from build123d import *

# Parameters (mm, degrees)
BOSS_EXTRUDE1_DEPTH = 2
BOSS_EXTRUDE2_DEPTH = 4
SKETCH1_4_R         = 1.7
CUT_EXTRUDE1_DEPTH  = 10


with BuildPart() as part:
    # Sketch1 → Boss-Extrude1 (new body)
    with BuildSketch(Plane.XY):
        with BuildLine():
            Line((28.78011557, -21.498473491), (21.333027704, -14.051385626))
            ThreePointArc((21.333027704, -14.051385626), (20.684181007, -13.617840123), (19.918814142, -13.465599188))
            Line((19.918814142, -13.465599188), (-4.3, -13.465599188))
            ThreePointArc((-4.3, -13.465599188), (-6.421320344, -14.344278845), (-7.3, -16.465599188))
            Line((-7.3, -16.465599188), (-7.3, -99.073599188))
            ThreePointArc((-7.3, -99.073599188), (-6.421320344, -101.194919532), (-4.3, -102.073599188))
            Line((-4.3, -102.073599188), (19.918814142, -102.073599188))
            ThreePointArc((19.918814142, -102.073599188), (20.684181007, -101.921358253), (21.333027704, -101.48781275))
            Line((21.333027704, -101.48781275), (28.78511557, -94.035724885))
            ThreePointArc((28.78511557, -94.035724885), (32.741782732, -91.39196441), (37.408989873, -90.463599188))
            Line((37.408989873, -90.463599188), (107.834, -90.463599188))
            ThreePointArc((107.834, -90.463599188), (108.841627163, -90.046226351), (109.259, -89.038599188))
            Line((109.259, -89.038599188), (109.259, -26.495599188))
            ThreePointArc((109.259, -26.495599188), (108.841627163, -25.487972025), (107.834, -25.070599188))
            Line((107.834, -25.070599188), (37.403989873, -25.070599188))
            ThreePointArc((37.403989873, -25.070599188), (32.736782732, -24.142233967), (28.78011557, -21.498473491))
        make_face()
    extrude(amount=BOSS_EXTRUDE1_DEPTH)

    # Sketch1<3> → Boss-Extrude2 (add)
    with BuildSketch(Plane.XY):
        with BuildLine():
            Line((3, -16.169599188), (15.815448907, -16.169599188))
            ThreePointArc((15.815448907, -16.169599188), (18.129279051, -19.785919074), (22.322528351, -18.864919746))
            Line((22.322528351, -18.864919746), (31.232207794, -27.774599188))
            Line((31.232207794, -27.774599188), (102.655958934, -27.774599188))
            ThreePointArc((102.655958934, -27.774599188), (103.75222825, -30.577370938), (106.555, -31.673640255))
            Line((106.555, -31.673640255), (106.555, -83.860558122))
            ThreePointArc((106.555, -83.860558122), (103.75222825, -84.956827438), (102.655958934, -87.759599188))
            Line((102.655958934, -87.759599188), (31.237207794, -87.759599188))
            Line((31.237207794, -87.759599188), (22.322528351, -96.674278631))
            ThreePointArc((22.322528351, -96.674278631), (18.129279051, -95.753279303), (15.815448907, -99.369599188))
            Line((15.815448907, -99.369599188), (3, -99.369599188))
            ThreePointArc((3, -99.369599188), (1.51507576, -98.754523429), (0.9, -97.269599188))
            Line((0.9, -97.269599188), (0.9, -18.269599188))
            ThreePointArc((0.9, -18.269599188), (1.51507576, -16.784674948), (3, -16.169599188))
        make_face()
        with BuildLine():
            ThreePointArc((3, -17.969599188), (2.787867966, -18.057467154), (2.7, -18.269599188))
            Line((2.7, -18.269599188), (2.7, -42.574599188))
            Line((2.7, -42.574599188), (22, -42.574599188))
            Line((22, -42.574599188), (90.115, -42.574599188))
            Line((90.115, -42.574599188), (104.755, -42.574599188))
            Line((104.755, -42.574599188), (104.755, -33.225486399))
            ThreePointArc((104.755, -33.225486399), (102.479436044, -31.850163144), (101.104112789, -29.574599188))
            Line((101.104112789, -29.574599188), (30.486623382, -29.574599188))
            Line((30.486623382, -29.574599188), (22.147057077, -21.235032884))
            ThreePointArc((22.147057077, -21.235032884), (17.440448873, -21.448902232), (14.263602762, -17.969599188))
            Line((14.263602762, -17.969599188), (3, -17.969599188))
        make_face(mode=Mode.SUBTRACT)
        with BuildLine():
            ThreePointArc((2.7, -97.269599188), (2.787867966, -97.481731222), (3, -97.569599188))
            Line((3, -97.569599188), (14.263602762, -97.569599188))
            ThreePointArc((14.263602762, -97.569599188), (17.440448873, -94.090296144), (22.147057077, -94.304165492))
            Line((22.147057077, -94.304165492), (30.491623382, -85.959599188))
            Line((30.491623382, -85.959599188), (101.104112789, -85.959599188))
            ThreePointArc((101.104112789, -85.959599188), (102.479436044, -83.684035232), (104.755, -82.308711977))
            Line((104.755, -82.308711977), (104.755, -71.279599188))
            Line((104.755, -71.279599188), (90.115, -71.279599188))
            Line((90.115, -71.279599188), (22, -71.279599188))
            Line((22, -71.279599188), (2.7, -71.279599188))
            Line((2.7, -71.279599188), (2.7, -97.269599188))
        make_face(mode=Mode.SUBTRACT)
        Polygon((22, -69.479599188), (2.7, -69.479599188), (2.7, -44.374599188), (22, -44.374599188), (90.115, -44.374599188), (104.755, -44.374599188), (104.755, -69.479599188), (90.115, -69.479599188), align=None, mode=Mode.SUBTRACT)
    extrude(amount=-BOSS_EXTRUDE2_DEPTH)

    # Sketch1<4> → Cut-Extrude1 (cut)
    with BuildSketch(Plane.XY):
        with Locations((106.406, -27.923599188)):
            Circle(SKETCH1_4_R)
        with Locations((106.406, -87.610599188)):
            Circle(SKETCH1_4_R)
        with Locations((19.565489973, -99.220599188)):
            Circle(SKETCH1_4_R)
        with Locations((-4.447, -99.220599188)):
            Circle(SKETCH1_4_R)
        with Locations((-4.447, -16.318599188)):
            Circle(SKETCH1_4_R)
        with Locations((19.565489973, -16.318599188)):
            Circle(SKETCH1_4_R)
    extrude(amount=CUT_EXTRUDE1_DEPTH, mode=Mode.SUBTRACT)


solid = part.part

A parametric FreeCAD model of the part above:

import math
import FreeCAD as App
import Part
import Sketcher

V = App.Vector
Q = App.Units.Quantity

doc = App.newDocument("Part")
body = doc.addObject("PartDesign::Body", "Body")

# Sketch on XY plane
sketch1 = body.newObject("Sketcher::SketchObject", "Sketch")
sketch1.AttachmentSupport = (doc.getObject("XY_Plane"), [""])
sketch1.MapMode = "FlatFace"
sketch1.addGeometry(Part.LineSegment(V(28.8, -21.5, 0), V(21.3, -14.1, 0)), False)
sketch1.addGeometry(Part.ArcOfCircle(Part.Circle(V(19.9, -15.5, 0), V(0, 0, 1), 2), math.radians(45), math.radians(90)), False)
sketch1.addGeometry(Part.LineSegment(V(19.9, -13.5, 0), V(-4.3, -13.5, 0)), False)
sketch1.addGeometry(Part.ArcOfCircle(Part.Circle(V(-4.3, -16.5, 0), V(0, 0, 1), 3), math.radians(90), math.radians(180)), False)
sketch1.addGeometry(Part.LineSegment(V(-7.3, -16.5, 0), V(-7.3, -99.1, 0)), False)
sketch1.addGeometry(Part.ArcOfCircle(Part.Circle(V(-4.3, -99.1, 0), V(0, 0, 1), 3), math.radians(180), math.radians(270)), False)
sketch1.addGeometry(Part.LineSegment(V(-4.3, -102.1, 0), V(19.9, -102.1, 0)), False)
sketch1.addGeometry(Part.ArcOfCircle(Part.Circle(V(19.9, -100.1, 0), V(0, 0, 1), 2), math.radians(-90), math.radians(-45)), False)
sketch1.addGeometry(Part.LineSegment(V(21.3, -101.5, 0), V(28.8, -94, 0)), False)
sketch1.addGeometry(Part.ArcOfCircle(Part.Circle(V(37.4, -102.7, 0), V(0, 0, 1), 12.2), math.radians(90), math.radians(135)), False)
sketch1.addGeometry(Part.LineSegment(V(37.4, -90.5, 0), V(107.8, -90.5, 0)), False)
sketch1.addGeometry(Part.ArcOfCircle(Part.Circle(V(107.8, -89, 0), V(0, 0, 1), 1.4), math.radians(-90), math.radians(0)), False)
sketch1.addGeometry(Part.LineSegment(V(109.3, -89, 0), V(109.3, -26.5, 0)), False)
sketch1.addGeometry(Part.ArcOfCircle(Part.Circle(V(107.8, -26.5, 0), V(0, 0, 1), 1.4), math.radians(0), math.radians(90)), False)
sketch1.addGeometry(Part.LineSegment(V(107.8, -25.1, 0), V(37.4, -25.1, 0)), False)
sketch1.addGeometry(Part.ArcOfCircle(Part.Circle(V(37.4, -12.9, 0), V(0, 0, 1), 12.2), math.radians(-135), math.radians(-90)), False)
sketch1.addConstraint(Sketcher.Constraint("Tangent", 0, 2, 1, 1))
sketch1.addConstraint(Sketcher.Constraint("Tangent", 1, 2, 2, 1))
sketch1.addConstraint(Sketcher.Constraint("Tangent", 2, 2, 3, 1))
sketch1.addConstraint(Sketcher.Constraint("Tangent", 3, 2, 4, 1))
sketch1.addConstraint(Sketcher.Constraint("Tangent", 4, 2, 5, 1))
sketch1.addConstraint(Sketcher.Constraint("Tangent", 5, 2, 6, 1))
sketch1.addConstraint(Sketcher.Constraint("Tangent", 6, 2, 7, 1))
sketch1.addConstraint(Sketcher.Constraint("Tangent", 7, 2, 8, 1))
sketch1.addConstraint(Sketcher.Constraint("Tangent", 8, 2, 9, 2))
sketch1.addConstraint(Sketcher.Constraint("Tangent", 9, 1, 10, 1))
sketch1.addConstraint(Sketcher.Constraint("Tangent", 10, 2, 11, 1))
sketch1.addConstraint(Sketcher.Constraint("Tangent", 11, 2, 12, 1))
sketch1.addConstraint(Sketcher.Constraint("Tangent", 12, 2, 13, 1))
sketch1.addConstraint(Sketcher.Constraint("Tangent", 13, 2, 14, 1))
sketch1.addConstraint(Sketcher.Constraint("Tangent", 14, 2, 15, 2))
sketch1.addConstraint(Sketcher.Constraint("Tangent", 15, 1, 0, 1))
sketch1.addConstraint(Sketcher.Constraint("Horizontal", 2))
sketch1.addConstraint(Sketcher.Constraint("Vertical", 4))
sketch1.addConstraint(Sketcher.Constraint("Horizontal", 6))
sketch1.addConstraint(Sketcher.Constraint("Horizontal", 10))
sketch1.addConstraint(Sketcher.Constraint("Vertical", 12))
sketch1.addConstraint(Sketcher.Constraint("Horizontal", 14))
sketch1.addConstraint(Sketcher.Constraint("Equal", 3, 5))
sketch1.addConstraint(Sketcher.Constraint("Equal", 1, 7))
sketch1.addConstraint(Sketcher.Constraint("Equal", 11, 13))
sketch1.addConstraint(Sketcher.Constraint("Equal", 9, 15))
sketch1.addConstraint(Sketcher.Constraint("Perpendicular", 0, 8))
sketch1.addConstraint(Sketcher.Constraint("Vertical", 1, 3, 7, 3))
sketch1.addConstraint(Sketcher.Constraint("Vertical", 0, 2, 7, 2))
sketch1.addConstraint(Sketcher.Constraint("Radius", 1, 2.0))
sketch1.addConstraint(Sketcher.Constraint("Radius", 3, 3.0))
sketch1.addConstraint(Sketcher.Constraint("Radius", 9, 12.196))
sketch1.addConstraint(Sketcher.Constraint("Radius", 11, 1.425))
sketch1.addConstraint(Sketcher.Constraint("DistanceX", 3, 3, -1, 1, 4.3))
sketch1.addConstraint(Sketcher.Constraint("DistanceY", 4, 2, 4, 1, 82.608))
sketch1.addConstraint(Sketcher.Constraint("DistanceY", 12, 1, 12, 2, 62.543))
sketch1.addConstraint(Sketcher.Constraint("DistanceY", 13, 3, 1, 3, 11.03))
sketch1.addConstraint(Sketcher.Constraint("DistanceX", -1, 1, 11, 3, 107.834))
sketch1.addConstraint(Sketcher.Constraint("DistanceX", 10, 1, 10, 2, 70.42501))
sketch1.addConstraint(Sketcher.Constraint("DistanceY", 1, 3, -1, 1, 15.465599))
pad1 = body.newObject("PartDesign::Pad", "Pad")
pad1.Profile = sketch1
pad1.Length = 2

# Sketch on XY plane
sketch2 = body.newObject("Sketcher::SketchObject", "Sketch001")
sketch2.AttachmentSupport = (doc.getObject("XY_Plane"), [""])
sketch2.MapMode = "FlatFace"
sketch2.addGeometry(Part.LineSegment(V(15.82, -16.17, 0), V(3, -16.17, 0)), False)
sketch2.addGeometry(Part.ArcOfCircle(Part.Circle(V(3, -18.27, 0), V(0, 0, 1), 2.1), math.radians(90), math.radians(180)), False)
sketch2.addGeometry(Part.LineSegment(V(0.9, -18.27, 0), V(0.9, -97.27, 0)), False)
sketch2.addGeometry(Part.ArcOfCircle(Part.Circle(V(3, -97.27, 0), V(0, 0, 1), 2.1), math.radians(180), math.radians(270)), False)
sketch2.addGeometry(Part.LineSegment(V(3, -99.37, 0), V(15.82, -99.37, 0)), False)
sketch2.addGeometry(Part.ArcOfCircle(Part.Circle(V(19.57, -99.22, 0), V(0, 0, 1), 3.75), math.radians(43), math.radians(182)), False)
sketch2.addGeometry(Part.LineSegment(V(22.32, -96.67, 0), V(31.24, -87.76, 0)), False)
sketch2.addGeometry(Part.LineSegment(V(31.24, -87.76, 0), V(102.66, -87.76, 0)), False)
sketch2.addGeometry(Part.ArcOfCircle(Part.Circle(V(106.41, -87.61, 0), V(0, 0, 1), 3.75), math.radians(88), math.radians(182)), False)
sketch2.addGeometry(Part.LineSegment(V(106.56, -83.86, 0), V(106.56, -31.67, 0)), False)
sketch2.addGeometry(Part.ArcOfCircle(Part.Circle(V(106.41, -27.92, 0), V(0, 0, 1), 3.75), math.radians(178), math.radians(272)), False)
sketch2.addGeometry(Part.LineSegment(V(102.66, -27.77, 0), V(31.23, -27.77, 0)), False)
sketch2.addGeometry(Part.LineSegment(V(31.23, -27.77, 0), V(22.32, -18.86, 0)), False)
sketch2.addGeometry(Part.ArcOfCircle(Part.Circle(V(19.57, -16.32, 0), V(0, 0, 1), 3.75), math.radians(178), math.radians(317)), False)
sketch2.addGeometry(Part.LineSegment(V(2.7, -97.27, 0), V(2.7, -71.28, 0)), False)
sketch2.addGeometry(Part.LineSegment(V(2.7, -71.28, 0), V(104.75, -71.28, 0)), False)
sketch2.addGeometry(Part.LineSegment(V(104.75, -71.28, 0), V(104.75, -82.31, 0)), False)
sketch2.addGeometry(Part.ArcOfCircle(Part.Circle(V(106.41, -87.61, 0), V(0, 0, 1), 5.55), math.radians(107), math.radians(163)), False)
sketch2.addGeometry(Part.LineSegment(V(101.1, -85.96, 0), V(30.49, -85.96, 0)), False)
sketch2.addGeometry(Part.LineSegment(V(30.49, -85.96, 0), V(22.15, -94.3, 0)), False)
sketch2.addGeometry(Part.ArcOfCircle(Part.Circle(V(19.57, -99.22, 0), V(0, 0, 1), 5.55), math.radians(62), math.radians(163)), False)
sketch2.addGeometry(Part.LineSegment(V(14.26, -97.57, 0), V(3, -97.57, 0)), False)
sketch2.addGeometry(Part.ArcOfCircle(Part.Circle(V(3, -97.27, 0), V(0, 0, 1), 0.3), math.radians(-180), math.radians(-90)), False)
sketch2.addGeometry(Part.LineSegment(V(2.7, -69.48, 0), V(2.7, -44.37, 0)), False)
sketch2.addGeometry(Part.LineSegment(V(2.7, -44.37, 0), V(104.75, -44.37, 0)), False)
sketch2.addGeometry(Part.LineSegment(V(104.75, -44.37, 0), V(104.75, -69.48, 0)), False)
sketch2.addGeometry(Part.LineSegment(V(104.75, -69.48, 0), V(2.7, -69.48, 0)), False)
sketch2.addGeometry(Part.LineSegment(V(3, -17.97, 0), V(14.26, -17.97, 0)), False)
sketch2.addGeometry(Part.ArcOfCircle(Part.Circle(V(19.57, -16.32, 0), V(0, 0, 1), 5.55), math.radians(-163), math.radians(-62)), False)
sketch2.addGeometry(Part.LineSegment(V(22.15, -21.24, 0), V(30.49, -29.57, 0)), False)
sketch2.addGeometry(Part.LineSegment(V(30.49, -29.57, 0), V(101.1, -29.57, 0)), False)
sketch2.addGeometry(Part.ArcOfCircle(Part.Circle(V(106.41, -27.92, 0), V(0, 0, 1), 5.55), math.radians(-163), math.radians(-107)), False)
sketch2.addGeometry(Part.LineSegment(V(104.75, -33.23, 0), V(104.75, -42.57, 0)), False)
sketch2.addGeometry(Part.LineSegment(V(104.75, -42.57, 0), V(2.7, -42.57, 0)), False)
sketch2.addGeometry(Part.LineSegment(V(2.7, -42.57, 0), V(2.7, -18.27, 0)), False)
sketch2.addGeometry(Part.ArcOfCircle(Part.Circle(V(3, -18.27, 0), V(0, 0, 1), 0.3), math.radians(90), math.radians(180)), False)
sketch2.addConstraint(Sketcher.Constraint("Tangent", 0, 2, 1, 1))
sketch2.addConstraint(Sketcher.Constraint("Tangent", 1, 2, 2, 1))
sketch2.addConstraint(Sketcher.Constraint("Tangent", 2, 2, 3, 1))
sketch2.addConstraint(Sketcher.Constraint("Tangent", 3, 2, 4, 1))
sketch2.addConstraint(Sketcher.Constraint("Coincident", 4, 2, 5, 2))
sketch2.addConstraint(Sketcher.Constraint("Coincident", 5, 1, 6, 1))
sketch2.addConstraint(Sketcher.Constraint("Coincident", 6, 2, 7, 1))
sketch2.addConstraint(Sketcher.Constraint("Coincident", 7, 2, 8, 2))
sketch2.addConstraint(Sketcher.Constraint("Coincident", 8, 1, 9, 1))
sketch2.addConstraint(Sketcher.Constraint("Coincident", 9, 2, 10, 2))
sketch2.addConstraint(Sketcher.Constraint("Coincident", 10, 1, 11, 1))
sketch2.addConstraint(Sketcher.Constraint("Coincident", 11, 2, 12, 1))
sketch2.addConstraint(Sketcher.Constraint("Coincident", 12, 2, 13, 2))
sketch2.addConstraint(Sketcher.Constraint("Coincident", 13, 1, 0, 1))
sketch2.addConstraint(Sketcher.Constraint("Coincident", 14, 2, 15, 1))
sketch2.addConstraint(Sketcher.Constraint("Coincident", 15, 2, 16, 1))
sketch2.addConstraint(Sketcher.Constraint("Coincident", 16, 2, 17, 1))
sketch2.addConstraint(Sketcher.Constraint("Coincident", 17, 2, 18, 1))
sketch2.addConstraint(Sketcher.Constraint("Coincident", 18, 2, 19, 1))
sketch2.addConstraint(Sketcher.Constraint("Coincident", 19, 2, 20, 1))
sketch2.addConstraint(Sketcher.Constraint("Coincident", 20, 2, 21, 1))
sketch2.addConstraint(Sketcher.Constraint("Tangent", 21, 2, 22, 2))
sketch2.addConstraint(Sketcher.Constraint("Tangent", 22, 1, 14, 1))
sketch2.addConstraint(Sketcher.Constraint("Coincident", 23, 2, 24, 1))
sketch2.addConstraint(Sketcher.Constraint("Coincident", 24, 2, 25, 1))
sketch2.addConstraint(Sketcher.Constraint("Coincident", 25, 2, 26, 1))
sketch2.addConstraint(Sketcher.Constraint("Coincident", 26, 2, 23, 1))
sketch2.addConstraint(Sketcher.Constraint("Coincident", 27, 2, 28, 1))
sketch2.addConstraint(Sketcher.Constraint("Coincident", 28, 2, 29, 1))
sketch2.addConstraint(Sketcher.Constraint("Coincident", 29, 2, 30, 1))
sketch2.addConstraint(Sketcher.Constraint("Coincident", 30, 2, 31, 1))
sketch2.addConstraint(Sketcher.Constraint("Coincident", 31, 2, 32, 1))
sketch2.addConstraint(Sketcher.Constraint("Coincident", 32, 2, 33, 1))
sketch2.addConstraint(Sketcher.Constraint("Coincident", 33, 2, 34, 1))
sketch2.addConstraint(Sketcher.Constraint("Tangent", 34, 2, 35, 2))
sketch2.addConstraint(Sketcher.Constraint("Tangent", 35, 1, 27, 1))
sketch2.addConstraint(Sketcher.Constraint("Horizontal", 0))
sketch2.addConstraint(Sketcher.Constraint("Vertical", 2))
sketch2.addConstraint(Sketcher.Constraint("Horizontal", 4))
sketch2.addConstraint(Sketcher.Constraint("Horizontal", 7))
sketch2.addConstraint(Sketcher.Constraint("Vertical", 9))
sketch2.addConstraint(Sketcher.Constraint("Horizontal", 11))
sketch2.addConstraint(Sketcher.Constraint("Vertical", 14))
sketch2.addConstraint(Sketcher.Constraint("Horizontal", 15))
sketch2.addConstraint(Sketcher.Constraint("Vertical", 16))
sketch2.addConstraint(Sketcher.Constraint("Horizontal", 18))
sketch2.addConstraint(Sketcher.Constraint("Horizontal", 21))
sketch2.addConstraint(Sketcher.Constraint("Vertical", 23))
sketch2.addConstraint(Sketcher.Constraint("Horizontal", 24))
sketch2.addConstraint(Sketcher.Constraint("Vertical", 25))
sketch2.addConstraint(Sketcher.Constraint("Horizontal", 26))
sketch2.addConstraint(Sketcher.Constraint("Horizontal", 27))
sketch2.addConstraint(Sketcher.Constraint("Horizontal", 30))
sketch2.addConstraint(Sketcher.Constraint("Vertical", 32))
sketch2.addConstraint(Sketcher.Constraint("Horizontal", 33))
sketch2.addConstraint(Sketcher.Constraint("Vertical", 34))
sketch2.addConstraint(Sketcher.Constraint("Coincident", 17, 3, 8, 3))
sketch2.addConstraint(Sketcher.Constraint("Coincident", 20, 3, 5, 3))
sketch2.addConstraint(Sketcher.Constraint("Coincident", 22, 3, 3, 3))
sketch2.addConstraint(Sketcher.Constraint("Coincident", 28, 3, 13, 3))
sketch2.addConstraint(Sketcher.Constraint("Coincident", 31, 3, 10, 3))
sketch2.addConstraint(Sketcher.Constraint("Coincident", 35, 3, 1, 3))
sketch2.addConstraint(Sketcher.Constraint("Equal", 1, 3))
sketch2.addConstraint(Sketcher.Constraint("Equal", 5, 8))
sketch2.addConstraint(Sketcher.Constraint("Equal", 8, 10))
sketch2.addConstraint(Sketcher.Constraint("Equal", 10, 13))
sketch2.addConstraint(Sketcher.Constraint("Equal", 17, 20))
sketch2.addConstraint(Sketcher.Constraint("Equal", 20, 28))
sketch2.addConstraint(Sketcher.Constraint("Equal", 28, 31))
sketch2.addConstraint(Sketcher.Constraint("Equal", 22, 35))
sketch2.addConstraint(Sketcher.Constraint("Perpendicular", 6, 12))
sketch2.addConstraint(Sketcher.Constraint("Perpendicular", 12, 19))
sketch2.addConstraint(Sketcher.Constraint("Perpendicular", 19, 29))
sketch2.addConstraint(Sketcher.Constraint("Vertical", 8, 3, 10, 3))
sketch2.addConstraint(Sketcher.Constraint("Vertical", 5, 3, 13, 3))
sketch2.addConstraint(Sketcher.Constraint("Vertical", 7, 2, 10, 1))
sketch2.addConstraint(Sketcher.Constraint("Vertical", 5, 1, 12, 2))
sketch2.addConstraint(Sketcher.Constraint("Vertical", 4, 2, 13, 1))
sketch2.addConstraint(Sketcher.Constraint("Vertical", 22, 1, 23, 2))
sketch2.addConstraint(Sketcher.Constraint("Vertical", 16, 2, 24, 2))
sketch2.addConstraint(Sketcher.Constraint("Vertical", 19, 2, 28, 2))
sketch2.addConstraint(Sketcher.Constraint("Vertical", 17, 2, 30, 2))
sketch2.addConstraint(Sketcher.Constraint("Vertical", 25, 2, 31, 2))
sketch2.addConstraint(Sketcher.Constraint("Radius", 1, 2.1))
sketch2.addConstraint(Sketcher.Constraint("Radius", 22, 0.3))
sketch2.addConstraint(Sketcher.Constraint("DistanceY", 2, 2, 2, 1, 79.0))
sketch2.addConstraint(Sketcher.Constraint("Angle", 6, Q("45 deg")))
sketch2.addConstraint(Sketcher.Constraint("DistanceX", -1, 1, 1, 3, 3.0))
sketch2.addConstraint(Sketcher.Constraint("Radius", 5, 3.753))
sketch2.addConstraint(Sketcher.Constraint("Radius", 17, 5.553))
sketch2.addConstraint(Sketcher.Constraint("DistanceY", 32, 2, 30, 2, 13.0))
sketch2.addConstraint(Sketcher.Constraint("DistanceY", 14, 1, 14, 2, 25.99))
sketch2.addConstraint(Sketcher.Constraint("DistanceX", 15, 2, 8, 1, 1.8))
sketch2.addConstraint(Sketcher.Constraint("DistanceY", 7, 2, 17, 2, 1.8))
sketch2.addConstraint(Sketcher.Constraint("DistanceY", 24, 2, 10, 1, 16.6))
sketch2.addConstraint(Sketcher.Constraint("DistanceY", 15, 2, 25, 2, 1.8))
sketch2.addConstraint(Sketcher.Constraint("DistanceX", 15, 1, 15, 2, 102.055))
sketch2.addConstraint(Sketcher.Constraint("DistanceY", 23, 1, 23, 2, 25.105))
sketch2.addConstraint(Sketcher.Constraint("DistanceY", 5, 3, 8, 3, 11.61))
sketch2.addConstraint(Sketcher.Constraint("DistanceY", 4, 2, 6, 2, 11.61))
sketch2.addConstraint(Sketcher.Constraint("Distance", 19, 11.800999))
sketch2.addConstraint(Sketcher.Constraint("DistanceX", -1, 1, 8, 3, 106.406))
sketch2.addConstraint(Sketcher.Constraint("DistanceY", 5, 3, 3, 3, 1.951))
sketch2.addConstraint(Sketcher.Constraint("DistanceX", 0, 2, 0, 1, 12.815449))
sketch2.addConstraint(Sketcher.Constraint("DistanceX", 7, 1, 7, 2, 71.418751))
sketch2.addConstraint(Sketcher.Constraint("DistanceY", 1, 3, -1, 1, 18.269599))
pad2 = body.newObject("PartDesign::Pad", "Pad001")
pad2.Profile = sketch2
pad2.Length = 4
pad2.Reversed = True

# Sketch on XY plane
sketch3 = body.newObject("Sketcher::SketchObject", "Sketch002")
sketch3.AttachmentSupport = (doc.getObject("XY_Plane"), [""])
sketch3.MapMode = "FlatFace"
sketch3.addGeometry(Part.Circle(V(106.4, -27.9, 0), V(0, 0, 1), 1.7), False)
sketch3.addGeometry(Part.Circle(V(106.4, -87.6, 0), V(0, 0, 1), 1.7), False)
sketch3.addGeometry(Part.Circle(V(19.6, -99.2, 0), V(0, 0, 1), 1.7), False)
sketch3.addGeometry(Part.Circle(V(-4.4, -99.2, 0), V(0, 0, 1), 1.7), False)
sketch3.addGeometry(Part.Circle(V(-4.4, -16.3, 0), V(0, 0, 1), 1.7), False)
sketch3.addGeometry(Part.Circle(V(19.6, -16.3, 0), V(0, 0, 1), 1.7), False)
sketch3.addConstraint(Sketcher.Constraint("Equal", 0, 1))
sketch3.addConstraint(Sketcher.Constraint("Equal", 1, 2))
sketch3.addConstraint(Sketcher.Constraint("Equal", 2, 3))
sketch3.addConstraint(Sketcher.Constraint("Equal", 3, 4))
sketch3.addConstraint(Sketcher.Constraint("Equal", 4, 5))
sketch3.addConstraint(Sketcher.Constraint("Horizontal", 2, 3, 3, 3))
sketch3.addConstraint(Sketcher.Constraint("Horizontal", 4, 3, 5, 3))
sketch3.addConstraint(Sketcher.Constraint("Vertical", 0, 3, 1, 3))
sketch3.addConstraint(Sketcher.Constraint("Vertical", 3, 3, 4, 3))
sketch3.addConstraint(Sketcher.Constraint("Vertical", 2, 3, 5, 3))
sketch3.addConstraint(Sketcher.Constraint("Diameter", 0, 3.4))
sketch3.addConstraint(Sketcher.Constraint("DistanceY", 2, 3, 1, 3, 11.61))
sketch3.addConstraint(Sketcher.Constraint("DistanceX", -1, 1, 0, 3, 106.406))
sketch3.addConstraint(Sketcher.Constraint("DistanceX", 3, 3, -1, 1, 4.447))
sketch3.addConstraint(Sketcher.Constraint("DistanceY", 1, 3, 0, 3, 59.687))
sketch3.addConstraint(Sketcher.Constraint("DistanceY", 3, 3, 4, 3, 82.902))
sketch3.addConstraint(Sketcher.Constraint("DistanceY", 0, 3, -1, 1, 27.923599))
sketch3.addConstraint(Sketcher.Constraint("DistanceX", -1, 1, 2, 3, 19.56549))
pocket1 = body.newObject("PartDesign::Pocket", "Pocket")
pocket1.Profile = sketch3
pocket1.Length = 10
pocket1.Reversed = True

doc.recompute()
